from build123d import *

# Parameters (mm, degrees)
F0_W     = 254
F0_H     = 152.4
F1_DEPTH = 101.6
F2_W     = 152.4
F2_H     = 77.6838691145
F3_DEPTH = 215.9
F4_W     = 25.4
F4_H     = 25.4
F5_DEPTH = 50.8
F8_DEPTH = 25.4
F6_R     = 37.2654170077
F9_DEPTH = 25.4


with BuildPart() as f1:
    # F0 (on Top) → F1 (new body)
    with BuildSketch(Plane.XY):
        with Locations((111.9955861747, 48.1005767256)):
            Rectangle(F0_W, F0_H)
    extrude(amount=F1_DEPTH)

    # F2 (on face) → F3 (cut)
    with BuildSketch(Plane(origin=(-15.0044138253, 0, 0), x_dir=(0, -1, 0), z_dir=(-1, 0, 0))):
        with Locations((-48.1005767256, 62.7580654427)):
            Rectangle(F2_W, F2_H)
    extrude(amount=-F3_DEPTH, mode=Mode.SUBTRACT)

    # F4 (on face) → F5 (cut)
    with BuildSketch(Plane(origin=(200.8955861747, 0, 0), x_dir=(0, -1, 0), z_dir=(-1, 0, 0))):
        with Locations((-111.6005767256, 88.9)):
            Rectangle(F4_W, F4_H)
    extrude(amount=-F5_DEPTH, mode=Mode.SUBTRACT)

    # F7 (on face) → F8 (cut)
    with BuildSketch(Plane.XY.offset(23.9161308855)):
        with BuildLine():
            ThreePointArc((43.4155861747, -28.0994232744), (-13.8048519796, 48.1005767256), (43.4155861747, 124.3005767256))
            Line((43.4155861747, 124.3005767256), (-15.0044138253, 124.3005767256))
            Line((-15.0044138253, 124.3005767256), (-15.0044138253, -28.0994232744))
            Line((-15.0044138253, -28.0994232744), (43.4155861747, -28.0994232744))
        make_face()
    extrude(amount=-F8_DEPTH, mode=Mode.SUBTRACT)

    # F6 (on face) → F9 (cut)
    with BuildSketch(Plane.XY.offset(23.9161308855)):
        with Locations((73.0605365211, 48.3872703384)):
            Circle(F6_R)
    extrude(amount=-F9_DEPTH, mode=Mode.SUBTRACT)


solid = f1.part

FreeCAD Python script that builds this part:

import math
import FreeCAD as App
import Part
import Sketcher
from FreeCAD import Vector
Q = App.Units.Quantity

doc = App.newDocument("Part")
body = doc.addObject("PartDesign::Body", "Body")

sketch1 = body.newObject("Sketcher::SketchObject", "Sketch")
sketch1.AttachmentSupport = (doc.getObject("XY_Plane"), [""])
sketch1.MapMode = "FlatFace"
sketch1.addGeometry(Part.LineSegment(Vector(-15, 124, 0), Vector(-15, -28, 0)), False)
sketch1.addGeometry(Part.LineSegment(Vector(-15, -28, 0), Vector(239, -28, 0)), False)
sketch1.addGeometry(Part.LineSegment(Vector(239, -28, 0), Vector(239, 124, 0)), False)
sketch1.addGeometry(Part.LineSegment(Vector(239, 124, 0), Vector(-15, 124, 0)), False)
sketch1.addConstraint(Sketcher.Constraint("Coincident", 0, 2, 1, 1))
sketch1.addConstraint(Sketcher.Constraint("Coincident", 1, 2, 2, 1))
sketch1.addConstraint(Sketcher.Constraint("Coincident", 2, 2, 3, 1))
sketch1.addConstraint(Sketcher.Constraint("Coincident", 3, 2, 0, 1))
sketch1.addConstraint(Sketcher.Constraint("Vertical", 0))
sketch1.addConstraint(Sketcher.Constraint("Horizontal", 1))
sketch1.addConstraint(Sketcher.Constraint("Vertical", 2))
sketch1.addConstraint(Sketcher.Constraint("Horizontal", 3))
sketch1.addConstraint(Sketcher.Constraint("DistanceX", 1, 1, 1, 2, Q("10 in")))
sketch1.addConstraint(Sketcher.Constraint("DistanceY", 0, 2, 0, 1, Q("6 in")))
sketch1.addConstraint(Sketcher.Constraint("DistanceX", 0, 2, -1, 1, 15.004414))
sketch1.addConstraint(Sketcher.Constraint("DistanceY", 0, 2, -1, 1, 28.099423))
pad1 = body.newObject("PartDesign::Pad", "Pad")
pad1.Profile = sketch1
pad1.Length = Q("4 in")

sketch2 = body.newObject("Sketcher::SketchObject", "Sketch001")
sketch2.AttachmentSupport = (doc.getObject("YZ_Plane"), [""])
sketch2.MapMode = "FlatFace"
sketch2.AttachmentOffset = App.Placement(Vector(0, 0, -15.004414), App.Rotation())
sketch2.addGeometry(Part.LineSegment(Vector(124, 102, 0), Vector(124, 24, 0)), False)
sketch2.addGeometry(Part.LineSegment(Vector(124, 24, 0), Vector(-28, 24, 0)), False)
sketch2.addGeometry(Part.LineSegment(Vector(-28, 24, 0), Vector(-28, 102, 0)), False)
sketch2.addGeometry(Part.LineSegment(Vector(-28, 102, 0), Vector(124, 102, 0)), False)
sketch2.addConstraint(Sketcher.Constraint("Coincident", 0, 2, 1, 1))
sketch2.addConstraint(Sketcher.Constraint("Coincident", 1, 2, 2, 1))
sketch2.addConstraint(Sketcher.Constraint("Coincident", 2, 2, 3, 1))
sketch2.addConstraint(Sketcher.Constraint("Coincident", 3, 2, 0, 1))
sketch2.addConstraint(Sketcher.Constraint("Vertical", 0))
sketch2.addConstraint(Sketcher.Constraint("Horizontal", 1))
sketch2.addConstraint(Sketcher.Constraint("Vertical", 2))
sketch2.addConstraint(Sketcher.Constraint("Horizontal", 3))
sketch2.addConstraint(Sketcher.Constraint("DistanceX", 1, 2, 1, 1, Q("6 in")))
sketch2.addConstraint(Sketcher.Constraint("DistanceY", -1, 1, 2, 2, Q("4 in")))
sketch2.addConstraint(Sketcher.Constraint("DistanceY", 0, 2, 0, 1, 77.683869))
sketch2.addConstraint(Sketcher.Constraint("DistanceX", -1, 1, 0, 2, 124.300577))
pocket1 = body.newObject("PartDesign::Pocket", "Pocket")
pocket1.Profile = sketch2
pocket1.Length = Q("8.5 in")
pocket1.Reversed = True

sketch3 = body.newObject("Sketcher::SketchObject", "Sketch002")
sketch3.AttachmentSupport = (doc.getObject("YZ_Plane"), [""])
sketch3.MapMode = "FlatFace"
sketch3.AttachmentOffset = App.Placement(Vector(0, 0, 200.895586), App.Rotation())
sketch3.addGeometry(Part.LineSegment(Vector(124, 102, 0), Vector(124, 76, 0)), False)
sketch3.addGeometry(Part.LineSegment(Vector(124, 76, 0), Vector(99, 76, 0)), False)
sketch3.addGeometry(Part.LineSegment(Vector(99, 76, 0), Vector(99, 102, 0)), False)
sketch3.addGeometry(Part.LineSegment(Vector(99, 102, 0), Vector(124, 102, 0)), False)
sketch3.addConstraint(Sketcher.Constraint("Coincident", 0, 2, 1, 1))
sketch3.addConstraint(Sketcher.Constraint("Coincident", 1, 2, 2, 1))
sketch3.addConstraint(Sketcher.Constraint("Coincident", 2, 2, 3, 1))
sketch3.addConstraint(Sketcher.Constraint("Coincident", 3, 2, 0, 1))
sketch3.addConstraint(Sketcher.Constraint("Vertical", 0))
sketch3.addConstraint(Sketcher.Constraint("Horizontal", 1))
sketch3.addConstraint(Sketcher.Constraint("Vertical", 2))
sketch3.addConstraint(Sketcher.Constraint("Horizontal", 3))
sketch3.addConstraint(Sketcher.Constraint("Equal", 3, 0))
sketch3.addConstraint(Sketcher.Constraint("DistanceX", 1, 2, 1, 1, Q("1 in")))
sketch3.addConstraint(Sketcher.Constraint("DistanceY", -1, 1, 0, 2, Q("3 in")))
sketch3.addConstraint(Sketcher.Constraint("DistanceX", -1, 1, 0, 2, 124.300577))
pocket2 = body.newObject("PartDesign::Pocket", "Pocket001")
pocket2.Profile = sketch3
pocket2.Length = Q("2 in")
pocket2.Reversed = True

sketch4 = body.newObject("Sketcher::SketchObject", "Sketch003")
sketch4.AttachmentSupport = (doc.getObject("XY_Plane"), [""])
sketch4.MapMode = "FlatFace"
sketch4.AttachmentOffset = App.Placement(Vector(0, 0, 23.916131), App.Rotation())
sketch4.addGeometry(Part.ArcOfCircle(Part.Circle(Vector(66, 48, 0), Vector(0, 0, 1), 79), math.radians(106), math.radians(254)), False)
sketch4.addGeometry(Part.LineSegment(Vector(43, 124, 0), Vector(-15, 124, 0)), False)
sketch4.addGeometry(Part.LineSegment(Vector(-15, 124, 0), Vector(-15, -28, 0)), False)
sketch4.addGeometry(Part.LineSegment(Vector(-15, -28, 0), Vector(43, -28, 0)), False)
sketch4.addConstraint(Sketcher.Constraint("Coincident", 0, 1, 1, 1))
sketch4.addConstraint(Sketcher.Constraint("Coincident", 1, 2, 2, 1))
sketch4.addConstraint(Sketcher.Constraint("Coincident", 2, 2, 3, 1))
sketch4.addConstraint(Sketcher.Constraint("Coincident", 3, 2, 0, 2))
sketch4.addConstraint(Sketcher.Constraint("Horizontal", 1))
sketch4.addConstraint(Sketcher.Constraint("Vertical", 2))
sketch4.addConstraint(Sketcher.Constraint("Horizontal", 3))
sketch4.addConstraint(Sketcher.Constraint("Vertical", 0, 1, 3, 2))
sketch4.addConstraint(Sketcher.Constraint("DistanceY", 2, 2, 2, 1, Q("6 in")))
sketch4.addConstraint(Sketcher.Constraint("DistanceX", 1, 2, 1, 1, Q("2.3 in")))
sketch4.addConstraint(Sketcher.Constraint("Radius", 0, 79.347684))
sketch4.addConstraint(Sketcher.Constraint("DistanceX", -1, 1, 0, 3, 65.542832))
sketch4.addConstraint(Sketcher.Constraint("DistanceY", -1, 1, 0, 3, 48.100577))
pocket3 = body.newObject("PartDesign::Pocket", "Pocket002")
pocket3.Profile = sketch4
pocket3.Length = Q("1 in")

sketch5 = body.newObject("Sketcher::SketchObject", "Sketch004")
sketch5.AttachmentSupport = (doc.getObject("XY_Plane"), [""])
sketch5.MapMode = "FlatFace"
sketch5.AttachmentOffset = App.Placement(Vector(0, 0, 23.916131), App.Rotation())
sketch5.addGeometry(Part.Circle(Vector(73, 48, 0), Vector(0, 0, 1), 37), False)
sketch5.addConstraint(Sketcher.Constraint("Diameter", 0, 74.530834))
sketch5.addConstraint(Sketcher.Constraint("DistanceY", -1, 1, 0, 3, 48.38727))
sketch5.addConstraint(Sketcher.Constraint("DistanceX", -1, 1, 0, 3, 73.060537))
pocket4 = body.newObject("PartDesign::Pocket", "Pocket003")
pocket4.Profile = sketch5
pocket4.Length = Q("1 in")

doc.recompute()
